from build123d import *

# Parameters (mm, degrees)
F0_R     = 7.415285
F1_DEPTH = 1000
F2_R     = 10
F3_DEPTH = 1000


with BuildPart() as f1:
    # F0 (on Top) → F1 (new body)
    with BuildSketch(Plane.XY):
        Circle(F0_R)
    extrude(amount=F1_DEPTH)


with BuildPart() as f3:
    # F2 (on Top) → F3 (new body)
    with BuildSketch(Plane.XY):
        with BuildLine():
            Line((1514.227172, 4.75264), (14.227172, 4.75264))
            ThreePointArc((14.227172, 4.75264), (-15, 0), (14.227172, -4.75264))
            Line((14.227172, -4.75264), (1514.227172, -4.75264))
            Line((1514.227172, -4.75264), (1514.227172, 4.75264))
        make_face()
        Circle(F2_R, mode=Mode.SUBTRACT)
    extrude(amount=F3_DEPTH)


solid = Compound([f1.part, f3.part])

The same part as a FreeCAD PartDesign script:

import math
import FreeCAD as App
import Part
import Sketcher
from FreeCAD import Vector
Q = App.Units.Quantity

doc = App.newDocument("Part")
body = doc.addObject("PartDesign::Body", "Body")

# Sketch on XY plane
sketch1 = body.newObject("Sketcher::SketchObject", "Sketch")
sketch1.AttachmentSupport = (doc.getObject("XY_Plane"), [""])
sketch1.MapMode = "FlatFace"
sketch1.addGeometry(Part.Circle(Vector(0, 0, 0), Vector(0, 0, 1), 7.415285), False)
sketch1.addConstraint([
    Sketcher.Constraint("Coincident", 0, 3, -1, 1),
    Sketcher.Constraint("Diameter", 0, Q("14.83057 mm")),
])
pad1 = body.newObject("PartDesign::Pad", "Pad")
pad1.Profile = sketch1
pad1.Length = 1000
body2 = doc.addObject("PartDesign::Body", "Body001")

# Sketch on XY plane
sketch2 = body2.newObject("Sketcher::SketchObject", "Sketch001")
sketch2.AttachmentSupport = (doc.getObject("XY_Plane001"), [""])
sketch2.MapMode = "FlatFace"
sketch2.addGeometry([
    Part.LineSegment(Vector(1514.227172, 4.75264, 0), Vector(14.227172, 4.75264, 0)),  # 0
    Part.ArcOfCircle(Part.Circle(Vector(0, 0, 0), Vector(0, 0, 1), 15), math.radians(18.47209), math.radians(341.52791)),  # 1
    Part.LineSegment(Vector(14.227172, -4.75264, 0), Vector(1514.227172, -4.75264, 0)),  # 2
    Part.LineSegment(Vector(1514.227172, -4.75264, 0), Vector(1514.227172, 4.75264, 0)),  # 3
    Part.Circle(Vector(0, 0, 0), Vector(0, 0, 1), 10),  # 4
], False)
sketch2.addConstraint([
    Sketcher.Constraint("Coincident", 0, 2, 1, 1),
    Sketcher.Constraint("Coincident", 1, 2, 2, 1),
    Sketcher.Constraint("Coincident", 2, 2, 3, 1),
    Sketcher.Constraint("Coincident", 3, 2, 0, 1),
    Sketcher.Constraint("Horizontal", 0),
    Sketcher.Constraint("Horizontal", 2),
    Sketcher.Constraint("Vertical", 3),
    Sketcher.Constraint("Coincident", 1, 3, -1, 1),
    Sketcher.Constraint("Coincident", 4, 3, -1, 1),
    Sketcher.Constraint("Vertical", 0, 2, 1, 2),
    Sketcher.Constraint("Diameter", 4, Q("20 mm")),
    Sketcher.Constraint("Radius", 1, Q("15 mm")),
    Sketcher.Constraint("DistanceX", 0, 2, 0, 1, Q("1500 mm")),
    Sketcher.Constraint("DistanceY", 3, 1, 3, 2, Q("9.50528 mm")),
])
pad2 = body2.newObject("PartDesign::Pad", "Pad001")
pad2.Profile = sketch2
pad2.Length = 1000

doc.recompute()
